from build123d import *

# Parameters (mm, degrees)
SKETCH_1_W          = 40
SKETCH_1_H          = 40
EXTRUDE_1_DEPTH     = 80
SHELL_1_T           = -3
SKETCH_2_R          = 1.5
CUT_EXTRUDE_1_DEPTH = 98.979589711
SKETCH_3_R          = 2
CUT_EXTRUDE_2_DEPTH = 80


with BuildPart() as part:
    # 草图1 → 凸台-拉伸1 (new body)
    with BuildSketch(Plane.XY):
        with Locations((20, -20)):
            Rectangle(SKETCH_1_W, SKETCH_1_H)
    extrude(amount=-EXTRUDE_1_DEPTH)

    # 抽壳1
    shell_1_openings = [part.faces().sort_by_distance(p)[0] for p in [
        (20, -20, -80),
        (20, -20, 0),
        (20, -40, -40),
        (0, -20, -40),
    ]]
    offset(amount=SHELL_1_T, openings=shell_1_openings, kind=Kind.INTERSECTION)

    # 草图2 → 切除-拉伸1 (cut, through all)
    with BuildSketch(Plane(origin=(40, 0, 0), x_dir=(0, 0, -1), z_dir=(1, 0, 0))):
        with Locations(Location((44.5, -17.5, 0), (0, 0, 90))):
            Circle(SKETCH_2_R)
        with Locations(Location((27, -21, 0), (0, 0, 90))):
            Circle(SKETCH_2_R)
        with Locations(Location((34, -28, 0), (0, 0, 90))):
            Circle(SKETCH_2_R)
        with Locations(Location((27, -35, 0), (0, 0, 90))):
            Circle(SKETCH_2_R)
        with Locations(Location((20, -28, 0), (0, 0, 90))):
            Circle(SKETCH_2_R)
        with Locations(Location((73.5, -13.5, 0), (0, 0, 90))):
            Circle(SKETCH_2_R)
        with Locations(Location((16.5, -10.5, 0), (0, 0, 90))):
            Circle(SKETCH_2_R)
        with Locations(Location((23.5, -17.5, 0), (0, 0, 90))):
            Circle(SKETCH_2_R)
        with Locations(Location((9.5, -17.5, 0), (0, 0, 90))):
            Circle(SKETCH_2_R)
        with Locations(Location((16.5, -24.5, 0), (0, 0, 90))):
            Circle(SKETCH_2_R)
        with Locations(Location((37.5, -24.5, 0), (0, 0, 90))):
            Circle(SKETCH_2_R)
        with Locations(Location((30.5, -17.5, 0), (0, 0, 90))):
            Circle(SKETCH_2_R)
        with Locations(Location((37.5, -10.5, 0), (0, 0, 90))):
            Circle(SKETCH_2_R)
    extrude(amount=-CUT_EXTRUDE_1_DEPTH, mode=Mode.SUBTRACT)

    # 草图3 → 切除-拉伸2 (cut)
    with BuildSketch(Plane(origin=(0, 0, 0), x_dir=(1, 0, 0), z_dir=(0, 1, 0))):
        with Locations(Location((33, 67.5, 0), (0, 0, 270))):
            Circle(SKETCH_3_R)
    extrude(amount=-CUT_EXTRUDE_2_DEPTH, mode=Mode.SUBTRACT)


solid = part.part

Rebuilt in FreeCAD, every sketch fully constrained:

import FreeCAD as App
import Part
import Sketcher

V = App.Vector
Q = App.Units.Quantity


def faces_at(feature, points):
    """Names of the faces that lie closest to the given points."""
    faces = feature.Shape.Faces
    near = lambda p: min(range(len(faces)), key=lambda i: faces[i].distToShape(Part.Vertex(*p))[0])
    return sorted({f"Face{near(p) + 1}" for p in points})

doc = App.newDocument("Part")
body = doc.addObject("PartDesign::Body", "Body")

sketch1 = doc.addObject("Sketcher::SketchObject", "Sketch")
body.addObject(sketch1)
sketch1.AttachmentSupport = (doc.XY_Plane, [""])
sketch1.MapMode = "FlatFace"
sketch1.addGeometry(Part.LineSegment(V(0, 0, 0), V(0, -40, 0)), False)
sketch1.addGeometry(Part.LineSegment(V(0, -40, 0), V(40, -40, 0)), False)
sketch1.addGeometry(Part.LineSegment(V(40, -40, 0), V(40, 0, 0)), False)
sketch1.addGeometry(Part.LineSegment(V(40, 0, 0), V(0, 0, 0)), False)
sketch1.addConstraint(Sketcher.Constraint("Coincident", 0, 2, 1, 1))
sketch1.addConstraint(Sketcher.Constraint("Coincident", 1, 2, 2, 1))
sketch1.addConstraint(Sketcher.Constraint("Coincident", 2, 2, 3, 1))
sketch1.addConstraint(Sketcher.Constraint("Coincident", 3, 2, 0, 1))
sketch1.addConstraint(Sketcher.Constraint("Vertical", 0))
sketch1.addConstraint(Sketcher.Constraint("Horizontal", 1))
sketch1.addConstraint(Sketcher.Constraint("Vertical", 2))
sketch1.addConstraint(Sketcher.Constraint("Horizontal", 3))
sketch1.addConstraint(Sketcher.Constraint("Coincident", 3, 2, -1, 1))
sketch1.addConstraint(Sketcher.Constraint("Equal", 3, 0))
sketch1.addConstraint(Sketcher.Constraint("DistanceX", 1, 1, 1, 2, Q("40 mm")))
pad1 = doc.addObject("PartDesign::Pad", "Pad")
body.addObject(pad1)
pad1.Profile = sketch1
pad1.Length = 80
pad1.Reversed = True
doc.recompute()

thickness = doc.addObject("PartDesign::Thickness", "Thickness")
body.addObject(thickness)
thickness.Base = (pad1, faces_at(pad1, [
    (20, -20, -80),
    (20, -20, 0),
    (20, -40, -40),
    (0, -20, -40),
]))
thickness.Value = 3
thickness.Reversed = True
thickness.Join = "Intersection"

sketch2 = doc.addObject("Sketcher::SketchObject", "Sketch001")
body.addObject(sketch2)
sketch2.AttachmentSupport = (doc.YZ_Plane, [""])
sketch2.MapMode = "FlatFace"
sketch2.AttachmentOffset = App.Placement(V(0, 0, 40), App.Rotation())
sketch2.addGeometry(Part.Circle(V(-17.5, -44.5, 0), V(0, 0, 1), 1.5), False)
sketch2.addGeometry(Part.Circle(V(-21, -27, 0), V(0, 0, 1), 1.5), False)
sketch2.addGeometry(Part.Circle(V(-28, -34, 0), V(0, 0, 1), 1.5), False)
sketch2.addGeometry(Part.Circle(V(-35, -27, 0), V(0, 0, 1), 1.5), False)
sketch2.addGeometry(Part.Circle(V(-28, -20, 0), V(0, 0, 1), 1.5), False)
sketch2.addGeometry(Part.Circle(V(-13.5, -73.5, 0), V(0, 0, 1), 1.5), False)
sketch2.addGeometry(Part.Circle(V(-10.5, -16.5, 0), V(0, 0, 1), 1.5), False)
sketch2.addGeometry(Part.Circle(V(-17.5, -23.5, 0), V(0, 0, 1), 1.5), False)
sketch2.addGeometry(Part.Circle(V(-17.5, -9.5, 0), V(0, 0, 1), 1.5), False)
sketch2.addGeometry(Part.Circle(V(-24.5, -16.5, 0), V(0, 0, 1), 1.5), False)
sketch2.addGeometry(Part.Circle(V(-24.5, -37.5, 0), V(0, 0, 1), 1.5), False)
sketch2.addGeometry(Part.Circle(V(-17.5, -30.5, 0), V(0, 0, 1), 1.5), False)
sketch2.addGeometry(Part.Circle(V(-10.5, -37.5, 0), V(0, 0, 1), 1.5), False)
sketch2.addConstraint(Sketcher.Constraint("Equal", 0, 1))
sketch2.addConstraint(Sketcher.Constraint("Equal", 1, 2))
sketch2.addConstraint(Sketcher.Constraint("Equal", 2, 3))
sketch2.addConstraint(Sketcher.Constraint("Equal", 3, 4))
sketch2.addConstraint(Sketcher.Constraint("Equal", 4, 5))
sketch2.addConstraint(Sketcher.Constraint("Equal", 5, 6))
sketch2.addConstraint(Sketcher.Constraint("Equal", 6, 7))
sketch2.addConstraint(Sketcher.Constraint("Equal", 7, 8))
sketch2.addConstraint(Sketcher.Constraint("Equal", 8, 9))
sketch2.addConstraint(Sketcher.Constraint("Equal", 9, 10))
sketch2.addConstraint(Sketcher.Constraint("Equal", 10, 11))
sketch2.addConstraint(Sketcher.Constraint("Equal", 11, 12))
sketch2.addConstraint(Sketcher.Constraint("Horizontal", 1, 3, 3, 3))
sketch2.addConstraint(Sketcher.Constraint("Horizontal", 6, 3, 9, 3))
sketch2.addConstraint(Sketcher.Constraint("Horizontal", 10, 3, 12, 3))
sketch2.addConstraint(Sketcher.Constraint("Vertical", 2, 3, 4, 3))
sketch2.addConstraint(Sketcher.Constraint("Vertical", 0, 3, 7, 3))
sketch2.addConstraint(Sketcher.Constraint("Vertical", 7, 3, 8, 3))
sketch2.addConstraint(Sketcher.Constraint("Vertical", 9, 3, 10, 3))
sketch2.addConstraint(Sketcher.Constraint("Vertical", 8, 3, 11, 3))
sketch2.addConstraint(Sketcher.Constraint("Vertical", 6, 3, 12, 3))
sketch2.addConstraint(Sketcher.Constraint("Diameter", 0, Q("3 mm")))
sketch2.addConstraint(Sketcher.Constraint("DistanceX", 1, 3, -1, 1, Q("21 mm")))
sketch2.addConstraint(Sketcher.Constraint("DistanceY", 1, 3, -1, 1, Q("27 mm")))
sketch2.addConstraint(Sketcher.Constraint("DistanceX", 2, 3, -1, 1, Q("28 mm")))
sketch2.addConstraint(Sketcher.Constraint("DistanceY", 2, 3, -1, 1, Q("34 mm")))
sketch2.addConstraint(Sketcher.Constraint("DistanceX", 3, 3, -1, 1, Q("35 mm")))
sketch2.addConstraint(Sketcher.Constraint("DistanceY", 4, 3, -1, 1, Q("20 mm")))
sketch2.addConstraint(Sketcher.Constraint("DistanceX", 0, 3, 5, 3, Q("4 mm")))
sketch2.addConstraint(Sketcher.Constraint("DistanceY", 5, 3, 0, 3, Q("29 mm")))
sketch2.addConstraint(Sketcher.Constraint("DistanceX", 0, 3, 6, 3, Q("7 mm")))
sketch2.addConstraint(Sketcher.Constraint("DistanceY", 0, 3, 6, 3, Q("28 mm")))
sketch2.addConstraint(Sketcher.Constraint("DistanceY", 7, 3, 6, 3, Q("7 mm")))
sketch2.addConstraint(Sketcher.Constraint("DistanceY", 6, 3, 8, 3, Q("7 mm")))
sketch2.addConstraint(Sketcher.Constraint("DistanceX", 9, 3, 7, 3, Q("7 mm")))
sketch2.addConstraint(Sketcher.Constraint("DistanceY", 0, 3, 10, 3, Q("7 mm")))
sketch2.addConstraint(Sketcher.Constraint("DistanceY", 11, 3, 7, 3, Q("7 mm")))
sketch2.addConstraint(Sketcher.Constraint("DistanceX", 0, 3, -1, 1, Q("17.5 mm")))
sketch2.addConstraint(Sketcher.Constraint("DistanceY", 0, 3, -1, 1, Q("44.5 mm")))
pocket1 = doc.addObject("PartDesign::Pocket", "Pocket")
body.addObject(pocket1)
pocket1.Profile = sketch2
pocket1.Type = "ThroughAll"

sketch3 = doc.addObject("Sketcher::SketchObject", "Sketch002")
body.addObject(sketch3)
sketch3.AttachmentSupport = (doc.XZ_Plane, [""])
sketch3.MapMode = "FlatFace"
sketch3.addGeometry(Part.Circle(V(33, -67.5, 0), V(0, 0, 1), 2), False)
sketch3.addConstraint(Sketcher.Constraint("Diameter", 0, Q("4 mm")))
sketch3.addConstraint(Sketcher.Constraint("DistanceX", -1, 1, 0, 3, Q("33 mm")))
sketch3.addConstraint(Sketcher.Constraint("DistanceY", 0, 3, -1, 1, Q("67.5 mm")))
pocket2 = doc.addObject("PartDesign::Pocket", "Pocket001")
body.addObject(pocket2)
pocket2.Profile = sketch3
pocket2.Length = 80
pocket2.Reversed = True

doc.recompute()
